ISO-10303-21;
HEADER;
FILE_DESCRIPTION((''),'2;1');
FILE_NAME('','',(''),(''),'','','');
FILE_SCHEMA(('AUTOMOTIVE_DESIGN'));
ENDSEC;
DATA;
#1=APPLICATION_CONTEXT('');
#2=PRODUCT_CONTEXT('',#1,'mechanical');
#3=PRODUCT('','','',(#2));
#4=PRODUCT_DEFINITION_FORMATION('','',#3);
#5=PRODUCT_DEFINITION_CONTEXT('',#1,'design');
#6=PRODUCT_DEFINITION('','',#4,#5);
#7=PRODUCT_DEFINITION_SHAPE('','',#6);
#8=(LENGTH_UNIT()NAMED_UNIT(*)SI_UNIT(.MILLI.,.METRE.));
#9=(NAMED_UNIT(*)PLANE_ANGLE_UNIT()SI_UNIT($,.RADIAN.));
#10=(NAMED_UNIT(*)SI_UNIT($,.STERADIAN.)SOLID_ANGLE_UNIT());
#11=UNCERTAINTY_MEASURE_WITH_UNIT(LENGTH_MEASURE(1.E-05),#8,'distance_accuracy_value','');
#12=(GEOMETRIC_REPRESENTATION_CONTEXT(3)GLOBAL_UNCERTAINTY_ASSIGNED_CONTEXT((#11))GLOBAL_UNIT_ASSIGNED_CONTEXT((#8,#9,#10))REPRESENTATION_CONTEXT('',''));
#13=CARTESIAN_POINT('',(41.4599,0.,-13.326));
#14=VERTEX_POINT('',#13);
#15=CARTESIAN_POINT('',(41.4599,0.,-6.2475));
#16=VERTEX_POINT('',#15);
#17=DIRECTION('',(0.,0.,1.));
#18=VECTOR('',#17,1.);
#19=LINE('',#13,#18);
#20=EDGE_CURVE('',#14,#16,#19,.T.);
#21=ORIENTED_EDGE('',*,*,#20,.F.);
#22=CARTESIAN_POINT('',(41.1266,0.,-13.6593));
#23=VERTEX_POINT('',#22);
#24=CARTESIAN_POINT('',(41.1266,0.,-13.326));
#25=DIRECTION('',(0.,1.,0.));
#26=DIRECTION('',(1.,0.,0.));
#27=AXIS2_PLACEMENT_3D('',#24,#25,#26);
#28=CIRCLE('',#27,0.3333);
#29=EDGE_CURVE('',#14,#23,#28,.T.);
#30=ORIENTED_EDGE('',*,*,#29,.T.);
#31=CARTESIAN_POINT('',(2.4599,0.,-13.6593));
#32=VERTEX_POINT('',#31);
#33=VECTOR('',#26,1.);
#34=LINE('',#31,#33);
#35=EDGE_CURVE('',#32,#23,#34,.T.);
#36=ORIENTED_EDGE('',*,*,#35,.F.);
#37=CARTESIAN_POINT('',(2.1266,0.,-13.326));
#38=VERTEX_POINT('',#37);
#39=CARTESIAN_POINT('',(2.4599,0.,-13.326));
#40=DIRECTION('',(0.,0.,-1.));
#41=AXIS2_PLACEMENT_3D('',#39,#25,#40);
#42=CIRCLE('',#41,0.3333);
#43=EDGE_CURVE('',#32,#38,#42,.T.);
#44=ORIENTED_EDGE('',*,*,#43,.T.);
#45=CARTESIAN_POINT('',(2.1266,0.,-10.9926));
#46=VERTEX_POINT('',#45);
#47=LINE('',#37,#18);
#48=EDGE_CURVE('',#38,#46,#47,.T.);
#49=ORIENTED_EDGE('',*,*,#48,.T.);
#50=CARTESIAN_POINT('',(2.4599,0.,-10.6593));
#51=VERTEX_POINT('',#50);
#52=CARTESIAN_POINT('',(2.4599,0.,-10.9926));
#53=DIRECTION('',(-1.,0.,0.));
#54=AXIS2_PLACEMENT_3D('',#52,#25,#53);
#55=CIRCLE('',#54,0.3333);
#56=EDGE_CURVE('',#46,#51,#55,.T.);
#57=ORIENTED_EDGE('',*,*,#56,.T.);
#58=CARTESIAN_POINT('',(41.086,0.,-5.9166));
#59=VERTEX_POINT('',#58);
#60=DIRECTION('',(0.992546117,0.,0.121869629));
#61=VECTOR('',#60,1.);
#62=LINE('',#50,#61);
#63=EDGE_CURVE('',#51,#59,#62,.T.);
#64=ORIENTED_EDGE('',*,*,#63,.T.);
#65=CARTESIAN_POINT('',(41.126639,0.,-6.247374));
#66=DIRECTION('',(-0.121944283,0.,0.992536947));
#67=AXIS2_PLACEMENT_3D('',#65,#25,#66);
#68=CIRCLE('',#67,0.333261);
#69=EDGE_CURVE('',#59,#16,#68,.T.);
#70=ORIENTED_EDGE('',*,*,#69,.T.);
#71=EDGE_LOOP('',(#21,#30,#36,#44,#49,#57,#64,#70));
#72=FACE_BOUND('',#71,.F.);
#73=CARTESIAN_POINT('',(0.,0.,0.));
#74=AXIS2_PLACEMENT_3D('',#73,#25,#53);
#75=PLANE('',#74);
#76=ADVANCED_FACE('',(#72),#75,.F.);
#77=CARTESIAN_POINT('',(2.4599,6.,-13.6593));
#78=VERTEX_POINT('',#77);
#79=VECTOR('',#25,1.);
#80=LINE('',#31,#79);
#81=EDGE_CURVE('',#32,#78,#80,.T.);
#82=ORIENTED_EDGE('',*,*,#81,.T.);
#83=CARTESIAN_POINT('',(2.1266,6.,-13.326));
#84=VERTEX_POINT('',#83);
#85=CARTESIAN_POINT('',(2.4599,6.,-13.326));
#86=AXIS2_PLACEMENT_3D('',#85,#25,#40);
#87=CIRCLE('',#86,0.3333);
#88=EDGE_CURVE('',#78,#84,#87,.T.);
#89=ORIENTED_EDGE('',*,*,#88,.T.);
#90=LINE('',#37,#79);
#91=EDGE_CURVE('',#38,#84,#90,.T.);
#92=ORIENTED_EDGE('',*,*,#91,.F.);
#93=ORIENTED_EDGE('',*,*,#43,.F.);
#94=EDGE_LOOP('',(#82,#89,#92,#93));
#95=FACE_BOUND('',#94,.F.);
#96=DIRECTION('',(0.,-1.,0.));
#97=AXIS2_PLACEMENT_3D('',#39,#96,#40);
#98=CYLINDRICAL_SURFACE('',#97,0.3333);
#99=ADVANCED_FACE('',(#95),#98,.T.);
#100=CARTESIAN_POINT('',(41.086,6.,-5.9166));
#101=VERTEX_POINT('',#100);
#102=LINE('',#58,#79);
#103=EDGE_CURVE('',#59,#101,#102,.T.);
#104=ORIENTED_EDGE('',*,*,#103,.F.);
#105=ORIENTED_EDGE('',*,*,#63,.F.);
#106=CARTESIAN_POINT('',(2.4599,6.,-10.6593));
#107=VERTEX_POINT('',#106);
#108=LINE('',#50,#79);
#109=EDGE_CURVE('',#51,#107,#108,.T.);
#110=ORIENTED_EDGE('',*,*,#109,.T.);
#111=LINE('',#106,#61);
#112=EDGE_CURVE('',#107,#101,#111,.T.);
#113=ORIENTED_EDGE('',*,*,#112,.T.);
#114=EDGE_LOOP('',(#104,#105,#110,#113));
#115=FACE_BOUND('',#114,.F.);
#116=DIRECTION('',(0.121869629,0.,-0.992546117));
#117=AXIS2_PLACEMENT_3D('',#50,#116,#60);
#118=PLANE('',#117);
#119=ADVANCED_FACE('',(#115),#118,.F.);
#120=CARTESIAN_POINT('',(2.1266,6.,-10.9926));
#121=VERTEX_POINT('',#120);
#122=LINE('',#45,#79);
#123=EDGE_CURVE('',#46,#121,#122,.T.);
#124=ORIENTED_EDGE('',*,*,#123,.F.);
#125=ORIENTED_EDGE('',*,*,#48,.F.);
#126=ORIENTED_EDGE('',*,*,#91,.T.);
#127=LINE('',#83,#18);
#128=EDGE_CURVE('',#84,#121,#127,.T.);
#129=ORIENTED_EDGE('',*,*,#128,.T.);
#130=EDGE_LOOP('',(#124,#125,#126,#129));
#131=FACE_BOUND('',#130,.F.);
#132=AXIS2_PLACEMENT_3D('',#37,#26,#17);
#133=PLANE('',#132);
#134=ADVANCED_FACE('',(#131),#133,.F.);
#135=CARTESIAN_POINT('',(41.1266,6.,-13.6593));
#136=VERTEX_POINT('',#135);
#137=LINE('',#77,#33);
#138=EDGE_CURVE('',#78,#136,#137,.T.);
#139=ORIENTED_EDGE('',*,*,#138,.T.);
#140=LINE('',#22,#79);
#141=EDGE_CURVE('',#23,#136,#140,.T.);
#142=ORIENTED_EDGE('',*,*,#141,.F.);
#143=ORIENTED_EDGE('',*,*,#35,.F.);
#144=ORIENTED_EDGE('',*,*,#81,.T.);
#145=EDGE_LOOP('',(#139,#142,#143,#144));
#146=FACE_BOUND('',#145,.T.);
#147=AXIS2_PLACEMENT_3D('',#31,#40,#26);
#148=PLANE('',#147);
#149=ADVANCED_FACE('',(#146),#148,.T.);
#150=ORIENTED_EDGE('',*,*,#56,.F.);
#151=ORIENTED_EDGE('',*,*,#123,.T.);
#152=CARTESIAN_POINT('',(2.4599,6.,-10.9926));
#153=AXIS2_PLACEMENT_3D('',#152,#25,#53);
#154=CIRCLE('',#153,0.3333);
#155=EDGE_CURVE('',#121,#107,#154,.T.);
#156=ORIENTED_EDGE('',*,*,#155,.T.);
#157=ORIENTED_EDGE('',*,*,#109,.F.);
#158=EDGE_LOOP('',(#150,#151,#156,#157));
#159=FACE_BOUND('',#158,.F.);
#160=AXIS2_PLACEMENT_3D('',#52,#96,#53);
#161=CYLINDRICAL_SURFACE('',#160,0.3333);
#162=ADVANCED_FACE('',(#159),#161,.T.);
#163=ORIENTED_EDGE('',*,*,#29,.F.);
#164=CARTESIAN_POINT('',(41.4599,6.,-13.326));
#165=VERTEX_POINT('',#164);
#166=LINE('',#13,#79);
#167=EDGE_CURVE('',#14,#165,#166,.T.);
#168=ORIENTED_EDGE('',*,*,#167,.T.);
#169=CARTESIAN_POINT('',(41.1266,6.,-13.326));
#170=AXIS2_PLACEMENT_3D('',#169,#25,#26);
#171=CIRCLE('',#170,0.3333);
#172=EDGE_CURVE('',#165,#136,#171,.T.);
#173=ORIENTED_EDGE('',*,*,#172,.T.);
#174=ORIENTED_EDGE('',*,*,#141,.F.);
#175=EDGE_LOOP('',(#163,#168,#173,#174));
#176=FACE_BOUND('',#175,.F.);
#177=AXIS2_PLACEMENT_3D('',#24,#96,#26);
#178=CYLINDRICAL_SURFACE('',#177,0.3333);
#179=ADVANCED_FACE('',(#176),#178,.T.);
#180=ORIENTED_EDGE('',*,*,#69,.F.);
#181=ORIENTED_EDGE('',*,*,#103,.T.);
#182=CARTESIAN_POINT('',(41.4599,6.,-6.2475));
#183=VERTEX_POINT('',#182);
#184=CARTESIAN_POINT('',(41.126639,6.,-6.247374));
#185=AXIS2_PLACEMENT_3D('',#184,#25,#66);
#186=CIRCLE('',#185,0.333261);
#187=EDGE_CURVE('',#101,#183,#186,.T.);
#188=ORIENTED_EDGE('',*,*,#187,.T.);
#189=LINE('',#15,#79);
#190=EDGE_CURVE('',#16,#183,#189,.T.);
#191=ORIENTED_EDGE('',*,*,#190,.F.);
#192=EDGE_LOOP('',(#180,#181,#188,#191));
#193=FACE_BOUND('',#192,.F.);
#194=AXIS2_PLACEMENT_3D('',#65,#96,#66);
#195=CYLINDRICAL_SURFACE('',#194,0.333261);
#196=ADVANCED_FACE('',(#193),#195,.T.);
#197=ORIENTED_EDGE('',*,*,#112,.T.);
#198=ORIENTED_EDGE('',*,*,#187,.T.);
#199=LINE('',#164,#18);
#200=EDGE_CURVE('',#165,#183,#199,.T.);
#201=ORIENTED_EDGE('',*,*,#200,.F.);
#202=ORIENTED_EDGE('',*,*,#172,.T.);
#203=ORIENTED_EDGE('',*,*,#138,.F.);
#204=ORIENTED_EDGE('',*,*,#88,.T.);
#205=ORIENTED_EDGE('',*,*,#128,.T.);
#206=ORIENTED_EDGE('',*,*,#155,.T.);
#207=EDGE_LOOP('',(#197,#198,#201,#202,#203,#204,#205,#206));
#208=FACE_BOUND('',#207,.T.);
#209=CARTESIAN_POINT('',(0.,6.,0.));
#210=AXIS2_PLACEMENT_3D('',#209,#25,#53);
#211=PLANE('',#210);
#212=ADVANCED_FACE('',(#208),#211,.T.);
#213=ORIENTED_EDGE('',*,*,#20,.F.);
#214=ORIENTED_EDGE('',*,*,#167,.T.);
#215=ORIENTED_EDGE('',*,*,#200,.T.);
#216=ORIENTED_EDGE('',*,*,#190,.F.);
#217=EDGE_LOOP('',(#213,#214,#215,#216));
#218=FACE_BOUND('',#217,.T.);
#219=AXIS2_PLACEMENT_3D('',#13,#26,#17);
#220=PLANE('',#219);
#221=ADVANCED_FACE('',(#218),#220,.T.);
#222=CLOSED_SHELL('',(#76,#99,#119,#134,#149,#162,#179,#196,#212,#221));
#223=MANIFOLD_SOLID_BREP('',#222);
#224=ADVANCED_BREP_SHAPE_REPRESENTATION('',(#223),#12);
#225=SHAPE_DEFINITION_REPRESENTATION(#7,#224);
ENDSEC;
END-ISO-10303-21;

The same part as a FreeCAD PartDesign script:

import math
import FreeCAD as App
import Part
import Sketcher
from FreeCAD import Vector
Q = App.Units.Quantity

doc = App.newDocument("Part")
body = doc.addObject("PartDesign::Body", "Body")

sketch1 = doc.addObject("Sketcher::SketchObject", "Sketch")
body.addObject(sketch1)
sketch1.AttachmentSupport = (doc.XZ_Plane, [""])
sketch1.MapMode = "FlatFace"
sketch1.addGeometry(Part.LineSegment(Vector(41.1266, -13.6593, 0), Vector(2.4599, -13.6593, 0)), False)
sketch1.addGeometry(Part.ArcOfCircle(Part.Circle(Vector(2.4599, -13.326, 0), Vector(0, 0, 1), 0.3333), math.radians(180), math.radians(270)), False)
sketch1.addGeometry(Part.LineSegment(Vector(2.1266, -13.326, 0), Vector(2.1266, -10.9926, 0)), False)
sketch1.addGeometry(Part.ArcOfCircle(Part.Circle(Vector(2.4599, -10.9926, 0), Vector(0, 0, 1), 0.3333), math.radians(90), math.radians(180)), False)
sketch1.addGeometry(Part.LineSegment(Vector(2.4599, -10.6593, 0), Vector(41.086, -5.9166, 0)), False)
sketch1.addGeometry(Part.ArcOfCircle(Part.Circle(Vector(41.1266, -6.2475, 0), Vector(0, 0, 1), 0.333381), math.radians(0), math.radians(96.994983)), False)
sketch1.addGeometry(Part.LineSegment(Vector(41.4599, -6.2475, 0), Vector(41.4599, -13.326, 0)), False)
sketch1.addGeometry(Part.ArcOfCircle(Part.Circle(Vector(41.1266, -13.326, 0), Vector(0, 0, 1), 0.3333), math.radians(-90), math.radians(0)), False)
sketch1.addConstraint(Sketcher.Constraint("Tangent", 0, 2, 1, 2))
sketch1.addConstraint(Sketcher.Constraint("Tangent", 1, 1, 2, 1))
sketch1.addConstraint(Sketcher.Constraint("Tangent", 2, 2, 3, 2))
sketch1.addConstraint(Sketcher.Constraint("Coincident", 3, 1, 4, 1))
sketch1.addConstraint(Sketcher.Constraint("Tangent", 4, 2, 5, 2))
sketch1.addConstraint(Sketcher.Constraint("Tangent", 5, 1, 6, 1))
sketch1.addConstraint(Sketcher.Constraint("Tangent", 6, 2, 7, 2))
sketch1.addConstraint(Sketcher.Constraint("Tangent", 7, 1, 0, 1))
sketch1.addConstraint(Sketcher.Constraint("Horizontal", 0))
sketch1.addConstraint(Sketcher.Constraint("Vertical", 2))
sketch1.addConstraint(Sketcher.Constraint("Vertical", 6))
sketch1.addConstraint(Sketcher.Constraint("Equal", 1, 3))
sketch1.addConstraint(Sketcher.Constraint("Equal", 3, 5))
sketch1.addConstraint(Sketcher.Constraint("Equal", 5, 7))
sketch1.addConstraint(Sketcher.Constraint("Vertical", 0, 2, 3, 1))
sketch1.addConstraint(Sketcher.Constraint("Angle", 4, Q("7 deg")))
sketch1.addConstraint(Sketcher.Constraint("Radius", 1, 0.3333))
sketch1.addConstraint(Sketcher.Constraint("DistanceX", 0, 2, 0, 1, 38.6667))
sketch1.addConstraint(Sketcher.Constraint("DistanceY", 0, 2, 3, 1, 3.0))
sketch1.addConstraint(Sketcher.Constraint("DistanceX", -1, 1, 1, 3, 2.46))
sketch1.addConstraint(Sketcher.Constraint("DistanceY", 1, 3, -1, 1, 13.326))
pad1 = doc.addObject("PartDesign::Pad", "Pad")
body.addObject(pad1)
pad1.Profile = sketch1
pad1.Length = 6
pad1.Reversed = True

doc.recompute()
